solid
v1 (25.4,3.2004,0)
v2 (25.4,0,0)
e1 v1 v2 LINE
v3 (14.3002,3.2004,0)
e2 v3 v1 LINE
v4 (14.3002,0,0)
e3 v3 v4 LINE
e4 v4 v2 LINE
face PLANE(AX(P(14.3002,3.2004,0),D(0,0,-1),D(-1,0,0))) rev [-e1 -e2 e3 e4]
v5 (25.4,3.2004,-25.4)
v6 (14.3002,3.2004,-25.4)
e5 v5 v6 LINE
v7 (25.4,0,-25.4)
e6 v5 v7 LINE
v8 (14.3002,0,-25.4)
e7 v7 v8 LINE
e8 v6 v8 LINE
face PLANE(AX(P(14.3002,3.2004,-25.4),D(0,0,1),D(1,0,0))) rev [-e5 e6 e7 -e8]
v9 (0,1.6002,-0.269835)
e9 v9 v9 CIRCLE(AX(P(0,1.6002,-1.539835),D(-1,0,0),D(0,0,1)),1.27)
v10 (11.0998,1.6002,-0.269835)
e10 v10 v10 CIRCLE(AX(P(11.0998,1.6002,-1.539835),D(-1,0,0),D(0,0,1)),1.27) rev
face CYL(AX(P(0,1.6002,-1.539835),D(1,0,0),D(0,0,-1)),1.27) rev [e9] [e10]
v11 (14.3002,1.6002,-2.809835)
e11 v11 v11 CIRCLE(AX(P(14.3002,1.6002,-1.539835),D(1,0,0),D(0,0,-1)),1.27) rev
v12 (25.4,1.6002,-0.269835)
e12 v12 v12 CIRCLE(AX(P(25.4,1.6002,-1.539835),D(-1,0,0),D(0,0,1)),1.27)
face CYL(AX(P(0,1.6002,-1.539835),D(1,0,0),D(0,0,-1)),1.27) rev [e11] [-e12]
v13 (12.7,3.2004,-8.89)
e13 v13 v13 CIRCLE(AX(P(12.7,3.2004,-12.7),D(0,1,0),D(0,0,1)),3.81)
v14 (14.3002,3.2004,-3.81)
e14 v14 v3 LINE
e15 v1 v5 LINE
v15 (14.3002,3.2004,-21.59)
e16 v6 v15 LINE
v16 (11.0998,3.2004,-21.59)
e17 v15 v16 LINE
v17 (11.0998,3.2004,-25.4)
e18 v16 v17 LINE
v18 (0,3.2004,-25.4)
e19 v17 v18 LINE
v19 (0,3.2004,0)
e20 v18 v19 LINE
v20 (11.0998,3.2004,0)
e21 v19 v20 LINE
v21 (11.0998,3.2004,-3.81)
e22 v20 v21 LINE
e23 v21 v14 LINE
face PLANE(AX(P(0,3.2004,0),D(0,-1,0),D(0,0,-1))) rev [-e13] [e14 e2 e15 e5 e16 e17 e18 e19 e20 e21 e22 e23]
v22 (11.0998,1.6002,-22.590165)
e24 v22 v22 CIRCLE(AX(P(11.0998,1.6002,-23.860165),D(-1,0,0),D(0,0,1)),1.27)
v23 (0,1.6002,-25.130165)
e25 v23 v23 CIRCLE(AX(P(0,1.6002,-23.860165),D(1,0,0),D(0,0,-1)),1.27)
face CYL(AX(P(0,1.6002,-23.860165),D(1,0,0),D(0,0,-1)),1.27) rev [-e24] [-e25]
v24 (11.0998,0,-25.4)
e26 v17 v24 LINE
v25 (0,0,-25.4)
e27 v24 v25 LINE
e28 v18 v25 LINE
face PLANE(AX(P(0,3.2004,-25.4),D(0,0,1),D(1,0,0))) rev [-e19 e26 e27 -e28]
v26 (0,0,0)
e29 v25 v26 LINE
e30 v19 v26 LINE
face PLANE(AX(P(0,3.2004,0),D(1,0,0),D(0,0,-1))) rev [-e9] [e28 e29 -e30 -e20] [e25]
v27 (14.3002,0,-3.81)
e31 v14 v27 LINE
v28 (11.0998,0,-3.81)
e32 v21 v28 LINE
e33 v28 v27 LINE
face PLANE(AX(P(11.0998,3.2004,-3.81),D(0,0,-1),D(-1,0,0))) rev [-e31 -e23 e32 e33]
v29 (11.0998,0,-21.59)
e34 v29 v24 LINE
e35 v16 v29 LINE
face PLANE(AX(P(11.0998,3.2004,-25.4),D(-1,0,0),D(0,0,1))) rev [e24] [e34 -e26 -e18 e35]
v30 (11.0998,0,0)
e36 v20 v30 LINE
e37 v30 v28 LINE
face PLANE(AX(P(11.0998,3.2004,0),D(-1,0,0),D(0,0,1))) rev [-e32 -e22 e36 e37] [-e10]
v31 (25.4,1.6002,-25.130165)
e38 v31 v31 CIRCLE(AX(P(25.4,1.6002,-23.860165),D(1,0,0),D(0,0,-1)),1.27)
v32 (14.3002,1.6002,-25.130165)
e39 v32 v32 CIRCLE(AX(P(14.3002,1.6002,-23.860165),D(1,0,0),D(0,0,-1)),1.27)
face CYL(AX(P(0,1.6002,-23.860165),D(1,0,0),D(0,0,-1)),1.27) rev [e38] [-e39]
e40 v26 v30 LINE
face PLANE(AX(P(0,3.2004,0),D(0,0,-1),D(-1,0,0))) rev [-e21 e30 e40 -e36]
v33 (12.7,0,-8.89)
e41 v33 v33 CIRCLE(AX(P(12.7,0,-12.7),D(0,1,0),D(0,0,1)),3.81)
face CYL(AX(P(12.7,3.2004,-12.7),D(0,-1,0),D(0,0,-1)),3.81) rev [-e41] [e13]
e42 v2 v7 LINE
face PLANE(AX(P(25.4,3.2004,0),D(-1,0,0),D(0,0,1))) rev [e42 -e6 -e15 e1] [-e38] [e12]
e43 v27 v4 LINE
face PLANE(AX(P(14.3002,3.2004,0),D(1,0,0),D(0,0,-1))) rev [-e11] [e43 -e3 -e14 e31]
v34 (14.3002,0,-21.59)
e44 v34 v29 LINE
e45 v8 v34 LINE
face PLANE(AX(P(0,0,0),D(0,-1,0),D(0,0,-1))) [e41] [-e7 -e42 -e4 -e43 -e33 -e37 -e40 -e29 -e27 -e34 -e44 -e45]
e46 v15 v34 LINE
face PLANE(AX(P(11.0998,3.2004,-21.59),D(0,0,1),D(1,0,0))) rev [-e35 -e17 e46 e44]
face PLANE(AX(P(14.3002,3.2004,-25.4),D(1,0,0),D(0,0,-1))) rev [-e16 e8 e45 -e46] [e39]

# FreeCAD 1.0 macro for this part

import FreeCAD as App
import Part
import Sketcher

V = App.Vector
Q = App.Units.Quantity


def add_polygon(sketch, points):
    """Adds a closed chain of lines whose ends are joined by coincident constraints."""
    first, n = sketch.GeometryCount, len(points)
    for a, b in zip(points, points[1:] + points[:1]):
        sketch.addGeometry(Part.LineSegment(App.Vector(*a, 0), App.Vector(*b, 0)), False)
    for i in range(n):
        sketch.addConstraint(Sketcher.Constraint("Coincident", first + i, 2, first + (i + 1) % n, 1))

doc = App.newDocument("Part")
body = doc.addObject("PartDesign::Body", "Body")

# Sketch on XZ plane
sketch1 = body.newObject("Sketcher::SketchObject", "Sketch")
sketch1.AttachmentSupport = (doc.getObject("XZ_Plane"), [""])
sketch1.MapMode = "FlatFace"
add_polygon(sketch1, [(11.1, -25.4), (0, -25.4), (0, 0), (11.1, 0), (11.1, -3.8), (14.3, -3.8), (14.3, 0), (25.4, 0), (25.4, -25.4), (14.3, -25.4), (14.3, -21.6), (11.1, -21.6)])  # lines 0-11
sketch1.addGeometry(Part.Circle(V(12.7, -12.7, 0), V(0, 0, 1), 3.8), False)  # 12
sketch1.addConstraint([
    Sketcher.Constraint("Horizontal", 0),
    Sketcher.Constraint("Vertical", 1),
    Sketcher.Constraint("Horizontal", 2),
    Sketcher.Constraint("Vertical", 3),
    Sketcher.Constraint("Horizontal", 4),
    Sketcher.Constraint("Vertical", 5),
    Sketcher.Constraint("Horizontal", 6),
    Sketcher.Constraint("Vertical", 7),
    Sketcher.Constraint("Horizontal", 8),
    Sketcher.Constraint("Vertical", 9),
    Sketcher.Constraint("Horizontal", 10),
    Sketcher.Constraint("Vertical", 11),
    Sketcher.Constraint("Coincident", 1, 2, -1, 1),
    Sketcher.Constraint("PointOnObject", 5, 2, -1),
    Sketcher.Constraint("Horizontal", 0, 2, 7, 2),
    Sketcher.Constraint("Vertical", 5, 2, 8, 2),
    Sketcher.Constraint("Vertical", 3, 2, 10, 2),
    Sketcher.Constraint("Equal", 2, 6),
    Sketcher.Constraint("Equal", 5, 9),
    Sketcher.Constraint("Diameter", 12, Q("0.3 in")),
    Sketcher.Constraint("DistanceY", 1, 1, 1, 2, Q("1 in")),
    Sketcher.Constraint("DistanceX", -1, 1, 6, 2, Q("1 in")),
    Sketcher.Constraint("DistanceY", 3, 2, 3, 1, Q("0.15 in")),
    Sketcher.Constraint("DistanceX", -1, 1, 12, 3, Q("0.5 in")),
    Sketcher.Constraint("DistanceY", 12, 3, -1, 1, Q("0.5 in")),
    Sketcher.Constraint("DistanceX", 0, 2, 0, 1, Q("0.437 in")),
])
pad1 = body.newObject("PartDesign::Pad", "Pad")
pad1.Profile = sketch1
pad1.Length = Q("0.126 in")
pad1.Reversed = True

# Sketch on YZ plane
sketch2 = body.newObject("Sketcher::SketchObject", "Sketch001")
sketch2.AttachmentSupport = (doc.getObject("YZ_Plane"), [""])
sketch2.MapMode = "FlatFace"
sketch2.AttachmentOffset = App.Placement(V(0, 0, 1 * 25.4), App.Rotation())
sketch2.addGeometry([
    Part.Circle(V(1.6, -23.9, 0), V(0, 0, 1), 1.3),
    Part.Circle(V(1.6, -1.5, 0), V(0, 0, 1), 1.3),
], False)
sketch2.addConstraint([
    Sketcher.Constraint("Equal", 0, 1),
    Sketcher.Constraint("Vertical", 0, 3, 1, 3),
    Sketcher.Constraint("Diameter", 0, Q("0.1 in")),
    Sketcher.Constraint("DistanceX", -1, 1, 0, 3, Q("0.063 in")),
    Sketcher.Constraint("DistanceY", 0, 3, 1, 3, 22.32033),
    Sketcher.Constraint("DistanceY", 0, 3, -1, 1, 23.860165),
])
pocket1 = body.newObject("PartDesign::Pocket", "Pocket")
pocket1.Profile = sketch2
pocket1.Type = "ThroughAll"

doc.recompute()
